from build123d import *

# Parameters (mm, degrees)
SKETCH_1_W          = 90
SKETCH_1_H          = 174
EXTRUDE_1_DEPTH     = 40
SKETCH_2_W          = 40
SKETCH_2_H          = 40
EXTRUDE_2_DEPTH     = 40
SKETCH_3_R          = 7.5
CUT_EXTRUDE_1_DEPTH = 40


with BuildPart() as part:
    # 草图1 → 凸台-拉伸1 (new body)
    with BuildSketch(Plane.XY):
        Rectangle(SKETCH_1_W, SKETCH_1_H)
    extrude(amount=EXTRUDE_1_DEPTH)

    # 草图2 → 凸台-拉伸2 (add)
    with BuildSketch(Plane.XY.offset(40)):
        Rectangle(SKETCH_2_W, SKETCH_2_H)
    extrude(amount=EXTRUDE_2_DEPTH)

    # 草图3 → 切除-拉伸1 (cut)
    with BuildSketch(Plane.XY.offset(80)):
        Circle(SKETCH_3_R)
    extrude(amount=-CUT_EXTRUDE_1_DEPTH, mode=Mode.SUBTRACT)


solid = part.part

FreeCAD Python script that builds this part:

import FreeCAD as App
import Part
import Sketcher

V = App.Vector


def add_polygon(sketch, points):
    """Adds a closed chain of lines whose ends are joined by coincident constraints."""
    first, n = sketch.GeometryCount, len(points)
    for a, b in zip(points, points[1:] + points[:1]):
        sketch.addGeometry(Part.LineSegment(App.Vector(*a, 0), App.Vector(*b, 0)), False)
    for i in range(n):
        sketch.addConstraint(Sketcher.Constraint("Coincident", first + i, 2, first + (i + 1) % n, 1))

doc = App.newDocument("Part")
params = doc.addObject("Spreadsheet::Sheet", "Params")
for row, (alias, value) in enumerate([
    ("sketch1_width", "90 mm"),
    ("sketch1_height", "174 mm"),
    ("pad1_length", "40 mm"),
    ("sketch2_width", "40 mm"),
    ("pad2_length", "40 mm"),
    ("sketch3_diameter", "15 mm"),
    ("pocket1_length", "40 mm"),
], start=1):
    params.set(f"A{row}", alias)
    params.set(f"B{row}", "=" + value)
    params.setAlias(f"B{row}", alias)

body = doc.addObject("PartDesign::Body", "Body")

# Sketch on XY plane
sketch1 = body.newObject("Sketcher::SketchObject", "Sketch")
sketch1.AttachmentSupport = (doc.getObject("XY_Plane"), [""])
sketch1.MapMode = "FlatFace"
add_polygon(sketch1, [(-45, 87), (-45, -87), (45, -87), (45, 87)])  # lines 0-3
sketch1.addConstraint(Sketcher.Constraint("Vertical", 0))
sketch1.addConstraint(Sketcher.Constraint("Horizontal", 1))
sketch1.addConstraint(Sketcher.Constraint("Vertical", 2))
sketch1.addConstraint(Sketcher.Constraint("Horizontal", 3))
sketch1.addConstraint(Sketcher.Constraint("Symmetric", 0, 2, 2, 2, -1, 1))
sketch1.addConstraint(Sketcher.Constraint("DistanceX", 1, 1, 1, 2, 90.0))
sketch1.addConstraint(Sketcher.Constraint("DistanceY", 0, 2, 0, 1, 174.0))
sketch1.setExpression("Constraints[9]", "Params.sketch1_width")
sketch1.setExpression("Constraints[10]", "Params.sketch1_height")
pad1 = body.newObject("PartDesign::Pad", "Pad")
pad1.Profile = sketch1
pad1.setExpression("Length", "Params.pad1_length")

# Sketch on XY plane
sketch2 = body.newObject("Sketcher::SketchObject", "Sketch001")
sketch2.AttachmentSupport = (doc.getObject("XY_Plane"), [""])
sketch2.MapMode = "FlatFace"
sketch2.AttachmentOffset = App.Placement(V(0, 0, 40), App.Rotation())
add_polygon(sketch2, [(-20, 20), (-20, -20), (20, -20), (20, 20)])  # lines 0-3
sketch2.addConstraint(Sketcher.Constraint("Vertical", 0))
sketch2.addConstraint(Sketcher.Constraint("Horizontal", 1))
sketch2.addConstraint(Sketcher.Constraint("Vertical", 2))
sketch2.addConstraint(Sketcher.Constraint("Horizontal", 3))
sketch2.addConstraint(Sketcher.Constraint("Symmetric", 0, 2, 2, 2, -1, 1))
sketch2.addConstraint(Sketcher.Constraint("Equal", 3, 0))
sketch2.addConstraint(Sketcher.Constraint("DistanceX", 1, 1, 1, 2, 40.0))
sketch2.setExpression("Constraints[10]", "Params.sketch2_width")
pad2 = body.newObject("PartDesign::Pad", "Pad001")
pad2.Profile = sketch2
pad2.setExpression("Length", "Params.pad2_length")

# Sketch on XY plane
sketch3 = body.newObject("Sketcher::SketchObject", "Sketch002")
sketch3.AttachmentSupport = (doc.getObject("XY_Plane"), [""])
sketch3.MapMode = "FlatFace"
sketch3.AttachmentOffset = App.Placement(V(0, 0, 80), App.Rotation())
sketch3.addGeometry(Part.Circle(V(0, 0, 0), V(0, 0, 1), 7.5), False)
sketch3.addConstraint(Sketcher.Constraint("Coincident", 0, 3, -1, 1))
sketch3.addConstraint(Sketcher.Constraint("Diameter", 0, 15.0))
sketch3.setExpression("Constraints[1]", "Params.sketch3_diameter")
pocket1 = body.newObject("PartDesign::Pocket", "Pocket")
pocket1.Profile = sketch3
pocket1.setExpression("Length", "Params.pocket1_length")

doc.recompute()
